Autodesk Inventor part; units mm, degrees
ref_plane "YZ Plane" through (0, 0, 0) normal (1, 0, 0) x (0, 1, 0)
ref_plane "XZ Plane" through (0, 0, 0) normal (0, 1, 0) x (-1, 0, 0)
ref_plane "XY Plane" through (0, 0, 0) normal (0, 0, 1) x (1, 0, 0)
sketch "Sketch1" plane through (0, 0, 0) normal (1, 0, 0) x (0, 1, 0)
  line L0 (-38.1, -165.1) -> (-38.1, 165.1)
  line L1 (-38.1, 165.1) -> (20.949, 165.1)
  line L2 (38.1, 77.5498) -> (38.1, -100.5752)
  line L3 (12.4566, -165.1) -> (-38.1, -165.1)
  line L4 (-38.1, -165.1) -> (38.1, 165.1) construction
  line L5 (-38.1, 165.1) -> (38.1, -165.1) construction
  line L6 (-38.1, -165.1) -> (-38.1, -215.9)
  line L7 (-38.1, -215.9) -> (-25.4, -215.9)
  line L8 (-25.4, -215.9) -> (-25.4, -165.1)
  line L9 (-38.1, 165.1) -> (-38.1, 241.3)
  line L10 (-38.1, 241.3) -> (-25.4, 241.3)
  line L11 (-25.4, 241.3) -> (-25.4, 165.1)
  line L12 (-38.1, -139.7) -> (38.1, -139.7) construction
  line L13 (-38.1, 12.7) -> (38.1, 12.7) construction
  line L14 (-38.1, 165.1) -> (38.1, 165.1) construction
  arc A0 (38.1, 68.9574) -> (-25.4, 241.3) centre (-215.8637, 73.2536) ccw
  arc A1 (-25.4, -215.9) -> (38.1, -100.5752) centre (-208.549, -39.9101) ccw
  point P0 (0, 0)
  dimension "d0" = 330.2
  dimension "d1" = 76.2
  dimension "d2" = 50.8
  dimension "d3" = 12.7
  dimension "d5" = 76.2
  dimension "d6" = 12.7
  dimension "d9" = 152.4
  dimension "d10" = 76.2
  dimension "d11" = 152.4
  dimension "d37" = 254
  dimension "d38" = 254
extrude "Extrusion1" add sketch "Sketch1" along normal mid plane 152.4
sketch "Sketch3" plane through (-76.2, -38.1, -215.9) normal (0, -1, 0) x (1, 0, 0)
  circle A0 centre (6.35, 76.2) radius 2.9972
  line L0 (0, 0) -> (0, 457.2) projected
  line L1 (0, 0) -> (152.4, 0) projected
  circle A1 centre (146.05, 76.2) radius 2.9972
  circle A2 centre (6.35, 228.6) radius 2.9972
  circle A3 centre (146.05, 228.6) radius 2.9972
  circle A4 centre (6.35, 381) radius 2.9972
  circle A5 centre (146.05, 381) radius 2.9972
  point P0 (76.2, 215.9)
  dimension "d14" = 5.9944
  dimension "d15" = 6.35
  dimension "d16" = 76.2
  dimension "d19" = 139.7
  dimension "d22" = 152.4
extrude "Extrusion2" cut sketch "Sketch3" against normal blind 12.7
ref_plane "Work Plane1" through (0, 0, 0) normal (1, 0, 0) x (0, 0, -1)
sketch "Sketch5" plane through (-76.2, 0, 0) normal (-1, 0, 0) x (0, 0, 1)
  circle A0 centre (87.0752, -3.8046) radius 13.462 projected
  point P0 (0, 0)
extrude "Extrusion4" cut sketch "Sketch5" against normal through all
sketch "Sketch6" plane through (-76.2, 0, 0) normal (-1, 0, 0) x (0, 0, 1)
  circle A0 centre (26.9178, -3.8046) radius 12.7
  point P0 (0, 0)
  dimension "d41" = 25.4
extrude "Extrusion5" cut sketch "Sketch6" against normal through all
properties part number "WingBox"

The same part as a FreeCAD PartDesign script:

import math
import FreeCAD as App
import Part
import Sketcher
from FreeCAD import Vector
Q = App.Units.Quantity

doc = App.newDocument("Part")
body = doc.addObject("PartDesign::Body", "Body")

# Sketch on YZ plane
sketch1 = body.newObject("Sketcher::SketchObject", "Sketch")
sketch1.AttachmentSupport = (doc.getObject("YZ_Plane"), [""])
sketch1.MapMode = "FlatFace"
sketch1.addGeometry([
    Part.LineSegment(Vector(-38, -216, 0), Vector(-25, -216, 0)),  # 0
    Part.ArcOfCircle(Part.Circle(Vector(-209, -40, 0), Vector(0, 0, 1), 254), math.radians(-44), math.radians(-14)),  # 1
    Part.LineSegment(Vector(38, -101, 0), Vector(38, 69, 0)),  # 2
    Part.ArcOfCircle(Part.Circle(Vector(-216, 73, 0), Vector(0, 0, 1), 254), math.radians(-1), math.radians(41)),  # 3
    Part.LineSegment(Vector(-25, 241, 0), Vector(-38, 241, 0)),  # 4
    Part.LineSegment(Vector(-38, 241, 0), Vector(-38, -216, 0)),  # 5
], False)
sketch1.addConstraint([
    Sketcher.Constraint("Coincident", 0, 2, 1, 1),
    Sketcher.Constraint("Coincident", 1, 2, 2, 1),
    Sketcher.Constraint("Coincident", 2, 2, 3, 1),
    Sketcher.Constraint("Coincident", 3, 2, 4, 1),
    Sketcher.Constraint("Coincident", 4, 2, 5, 1),
    Sketcher.Constraint("Coincident", 5, 2, 0, 1),
    Sketcher.Constraint("Horizontal", 0),
    Sketcher.Constraint("Vertical", 2),
    Sketcher.Constraint("Horizontal", 4),
    Sketcher.Constraint("Vertical", 5),
    Sketcher.Constraint("Equal", 1, 3),
    Sketcher.Constraint("Vertical", 0, 2, 3, 2),
    Sketcher.Constraint("Radius", 1, Q("10 in")),
    Sketcher.Constraint("DistanceX", 0, 1, 0, 2, Q("0.5 in")),
    Sketcher.Constraint("DistanceX", 4, 2, 2, 2, Q("3 in")),
    Sketcher.Constraint("DistanceY", 5, 2, 5, 1, Q("18 in")),
    Sketcher.Constraint("DistanceX", 0, 2, -1, 1, Q("1 in")),
    Sketcher.Constraint("DistanceY", 0, 2, -1, 1, Q("8.5 in")),
    Sketcher.Constraint("DistanceY", 2, 1, 2, 2, Q("6.6745 in")),
    Sketcher.Constraint("DistanceY", -1, 1, 3, 3, Q("2.884 in")),
])
pad1 = body.newObject("PartDesign::Pad", "Pad")
pad1.Profile = sketch1
pad1.Length = Q("6 in")
pad1.Midplane = True

# Sketch on XZ plane
sketch2 = body.newObject("Sketcher::SketchObject", "Sketch001")
sketch2.AttachmentSupport = (doc.getObject("XZ_Plane"), [""])
sketch2.MapMode = "FlatFace"
sketch2.AttachmentOffset = App.Placement(Vector(0, 0, 1.5 * 25.4), App.Rotation())
sketch2.addGeometry([
    Part.Circle(Vector(-69.8, -139.7, 0), Vector(0, 0, 1), 3),  # 0
    Part.Circle(Vector(69.8, -139.7, 0), Vector(0, 0, 1), 3),  # 1
    Part.Circle(Vector(-69.8, 12.7, 0), Vector(0, 0, 1), 3),  # 2
    Part.Circle(Vector(69.8, 12.7, 0), Vector(0, 0, 1), 3),  # 3
    Part.Circle(Vector(-69.8, 165.1, 0), Vector(0, 0, 1), 3),  # 4
    Part.Circle(Vector(69.8, 165.1, 0), Vector(0, 0, 1), 3),  # 5
], False)
sketch2.addConstraint([
    Sketcher.Constraint("Equal", 0, 1),
    Sketcher.Constraint("Equal", 1, 2),
    Sketcher.Constraint("Equal", 2, 3),
    Sketcher.Constraint("Equal", 3, 4),
    Sketcher.Constraint("Equal", 4, 5),
    Sketcher.Constraint("Symmetric", 0, 3, 1, 3, -2),
    Sketcher.Constraint("Symmetric", 2, 3, 3, 3, -2),
    Sketcher.Constraint("Symmetric", 4, 3, 5, 3, -2),
    Sketcher.Constraint("Vertical", 0, 3, 2, 3),
    Sketcher.Constraint("Vertical", 2, 3, 4, 3),
    Sketcher.Constraint("Diameter", 0, Q("0.236 in")),
    Sketcher.Constraint("DistanceY", 0, 3, 2, 3, Q("6 in")),
    Sketcher.Constraint("DistanceY", 2, 3, 4, 3, Q("6 in")),
    Sketcher.Constraint("DistanceY", 0, 3, -1, 1, Q("5.5 in")),
    Sketcher.Constraint("DistanceX", 0, 3, 1, 3, Q("5.5 in")),
])
pocket1 = body.newObject("PartDesign::Pocket", "Pocket")
pocket1.Profile = sketch2
pocket1.Length = Q("0.5 in")

# Sketch on YZ plane
sketch3 = body.newObject("Sketcher::SketchObject", "Sketch002")
sketch3.AttachmentSupport = (doc.getObject("YZ_Plane"), [""])
sketch3.MapMode = "FlatFace"
sketch3.AttachmentOffset = App.Placement(Vector(0, 0, -3 * 25.4), App.Rotation())
sketch3.addGeometry(Part.Circle(Vector(-4, 87, 0), Vector(0, 0, 1), 13), False)
sketch3.addConstraint([
    Sketcher.Constraint("Diameter", 0, Q("1.06 in")),
    Sketcher.Constraint("DistanceX", 0, 3, -1, 1, 3.8046),
    Sketcher.Constraint("DistanceY", -1, 1, 0, 3, 87.0752),
])
pocket2 = body.newObject("PartDesign::Pocket", "Pocket001")
pocket2.Profile = sketch3
pocket2.Type = "ThroughAll"
pocket2.Reversed = True

# Sketch on YZ plane
sketch4 = body.newObject("Sketcher::SketchObject", "Sketch003")
sketch4.AttachmentSupport = (doc.getObject("YZ_Plane"), [""])
sketch4.MapMode = "FlatFace"
sketch4.AttachmentOffset = App.Placement(Vector(0, 0, -3 * 25.4), App.Rotation())
sketch4.addGeometry(Part.Circle(Vector(-4, 27, 0), Vector(0, 0, 1), 13), False)
sketch4.addConstraint([
    Sketcher.Constraint("Diameter", 0, Q("1 in")),
    Sketcher.Constraint("DistanceX", 0, 3, -1, 1, 3.8046),
    Sketcher.Constraint("DistanceY", -1, 1, 0, 3, 26.9178),
])
pocket3 = body.newObject("PartDesign::Pocket", "Pocket002")
pocket3.Profile = sketch4
pocket3.Type = "ThroughAll"
pocket3.Reversed = True

doc.recompute()
